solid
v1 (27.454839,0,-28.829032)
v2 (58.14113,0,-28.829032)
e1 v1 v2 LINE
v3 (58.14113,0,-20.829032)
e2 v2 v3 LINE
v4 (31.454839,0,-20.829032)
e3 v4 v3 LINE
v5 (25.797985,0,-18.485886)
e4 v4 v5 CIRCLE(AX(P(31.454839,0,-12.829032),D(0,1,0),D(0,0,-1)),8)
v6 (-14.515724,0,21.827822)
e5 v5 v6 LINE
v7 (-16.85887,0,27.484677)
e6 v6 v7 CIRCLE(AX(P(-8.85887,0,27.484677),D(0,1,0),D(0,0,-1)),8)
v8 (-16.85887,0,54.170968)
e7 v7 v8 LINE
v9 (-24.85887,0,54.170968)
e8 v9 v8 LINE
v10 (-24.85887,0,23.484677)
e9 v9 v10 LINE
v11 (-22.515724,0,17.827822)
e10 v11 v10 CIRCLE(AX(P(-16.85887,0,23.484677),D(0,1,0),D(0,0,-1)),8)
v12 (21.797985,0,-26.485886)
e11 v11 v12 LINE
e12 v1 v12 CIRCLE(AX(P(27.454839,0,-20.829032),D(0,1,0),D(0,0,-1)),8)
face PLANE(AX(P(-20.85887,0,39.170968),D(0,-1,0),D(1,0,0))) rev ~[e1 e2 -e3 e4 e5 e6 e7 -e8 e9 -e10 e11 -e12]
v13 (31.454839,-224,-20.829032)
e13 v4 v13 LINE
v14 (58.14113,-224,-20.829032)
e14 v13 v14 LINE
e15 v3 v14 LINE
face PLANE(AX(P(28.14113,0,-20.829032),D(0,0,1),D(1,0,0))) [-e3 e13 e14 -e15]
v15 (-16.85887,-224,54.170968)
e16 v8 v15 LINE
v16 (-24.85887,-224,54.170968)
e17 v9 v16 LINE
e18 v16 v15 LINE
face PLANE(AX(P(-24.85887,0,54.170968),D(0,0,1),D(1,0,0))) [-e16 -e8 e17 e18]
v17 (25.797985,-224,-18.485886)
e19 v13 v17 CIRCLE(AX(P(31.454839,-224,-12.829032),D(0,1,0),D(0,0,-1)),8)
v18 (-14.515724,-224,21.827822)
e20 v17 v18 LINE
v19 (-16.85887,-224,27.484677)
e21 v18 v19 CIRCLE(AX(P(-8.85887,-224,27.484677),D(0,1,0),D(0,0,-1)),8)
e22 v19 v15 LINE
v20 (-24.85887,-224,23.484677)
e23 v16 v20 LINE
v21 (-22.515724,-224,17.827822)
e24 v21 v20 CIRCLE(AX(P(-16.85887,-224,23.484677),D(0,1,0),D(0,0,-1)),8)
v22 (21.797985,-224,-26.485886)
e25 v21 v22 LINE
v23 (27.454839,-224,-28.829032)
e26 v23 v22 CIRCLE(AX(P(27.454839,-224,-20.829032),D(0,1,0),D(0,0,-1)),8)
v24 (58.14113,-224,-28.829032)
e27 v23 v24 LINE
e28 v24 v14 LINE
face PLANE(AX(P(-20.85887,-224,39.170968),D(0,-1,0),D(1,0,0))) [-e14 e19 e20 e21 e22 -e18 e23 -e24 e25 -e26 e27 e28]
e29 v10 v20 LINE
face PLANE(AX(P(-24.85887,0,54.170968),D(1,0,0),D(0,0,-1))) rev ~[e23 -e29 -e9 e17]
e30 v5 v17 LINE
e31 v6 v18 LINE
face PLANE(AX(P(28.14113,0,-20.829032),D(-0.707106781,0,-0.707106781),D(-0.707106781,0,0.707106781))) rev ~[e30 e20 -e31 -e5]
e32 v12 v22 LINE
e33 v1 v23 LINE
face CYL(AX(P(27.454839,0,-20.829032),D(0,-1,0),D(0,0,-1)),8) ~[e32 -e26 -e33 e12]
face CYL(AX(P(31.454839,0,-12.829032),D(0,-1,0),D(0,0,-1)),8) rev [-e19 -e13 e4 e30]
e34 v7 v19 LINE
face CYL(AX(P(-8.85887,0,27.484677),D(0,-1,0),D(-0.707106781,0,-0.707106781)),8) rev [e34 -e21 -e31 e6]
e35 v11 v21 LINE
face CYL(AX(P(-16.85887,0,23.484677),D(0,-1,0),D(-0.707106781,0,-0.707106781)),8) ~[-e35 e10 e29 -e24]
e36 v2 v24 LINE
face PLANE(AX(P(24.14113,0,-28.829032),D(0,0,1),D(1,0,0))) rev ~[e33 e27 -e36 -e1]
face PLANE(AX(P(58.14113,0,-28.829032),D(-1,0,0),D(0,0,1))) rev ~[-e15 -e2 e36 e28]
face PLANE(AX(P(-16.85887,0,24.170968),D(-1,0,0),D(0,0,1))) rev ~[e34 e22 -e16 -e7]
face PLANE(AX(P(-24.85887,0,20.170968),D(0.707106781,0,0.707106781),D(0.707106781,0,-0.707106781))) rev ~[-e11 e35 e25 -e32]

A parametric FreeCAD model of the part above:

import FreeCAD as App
import Part
import Sketcher
Q = App.Units.Quantity


def edges_at(feature, points):
    """Names of the edges that pass closest to the given points."""
    edges = feature.Shape.Edges
    near = lambda p: min(range(len(edges)), key=lambda i: edges[i].distToShape(Part.Vertex(*p))[0])
    return sorted({f"Edge{near(p) + 1}" for p in points})

doc = App.newDocument("Part")
params = doc.addObject("Spreadsheet::Sheet", "Params")
for row, (alias, value) in enumerate([
    ("sketch1_width", "34 mm"),
    ("sketch1_width2", "30 mm"),
    ("sketch1_width3", "8 mm"),
    ("pad1_length", "224 mm"),
    ("fillet_radius", "8 mm"),
    ("fillet2_radius", "8 mm"),
], start=1):
    params.set(f"A{row}", alias)
    params.set(f"B{row}", "=" + value)
    params.setAlias(f"B{row}", alias)

body = doc.addObject("PartDesign::Body", "Body")

# Sketch on XZ plane
sketch1 = body.newObject("Sketcher::SketchObject", "Sketch")
sketch1.AttachmentSupport = (doc.getObject("XZ_Plane"), [""])
sketch1.MapMode = "FlatFace"
sketch1.addGeometry([
    Part.LineSegment(App.Vector(-24.85887, 54.170968, 0), App.Vector(-24.85887, 20.170968, 0)),  # 0
    Part.LineSegment(App.Vector(-24.85887, 20.170968, 0), App.Vector(24.14113, -28.829032, 0)),  # 1
    Part.LineSegment(App.Vector(24.14113, -28.829032, 0), App.Vector(58.14113, -28.829032, 0)),  # 2
    Part.LineSegment(App.Vector(58.14113, -28.829032, 0), App.Vector(58.14113, -20.829032, 0)),  # 3
    Part.LineSegment(App.Vector(58.14113, -20.829032, 0), App.Vector(28.14113, -20.829032, 0)),  # 4
    Part.LineSegment(App.Vector(28.14113, -20.829032, 0), App.Vector(-16.85887, 24.170968, 0)),  # 5
    Part.LineSegment(App.Vector(-16.85887, 24.170968, 0), App.Vector(-16.85887, 54.170968, 0)),  # 6
    Part.LineSegment(App.Vector(-16.85887, 54.170968, 0), App.Vector(-24.85887, 54.170968, 0)),  # 7
], False)
sketch1.addConstraint([
    Sketcher.Constraint("Coincident", 0, 2, 1, 1),
    Sketcher.Constraint("Coincident", 1, 2, 2, 1),
    Sketcher.Constraint("Coincident", 2, 2, 3, 1),
    Sketcher.Constraint("Coincident", 3, 2, 4, 1),
    Sketcher.Constraint("Coincident", 4, 2, 5, 1),
    Sketcher.Constraint("Coincident", 5, 2, 6, 1),
    Sketcher.Constraint("Coincident", 6, 2, 7, 1),
    Sketcher.Constraint("Coincident", 7, 2, 0, 1),
    Sketcher.Constraint("Vertical", 0),
    Sketcher.Constraint("Horizontal", 2),
    Sketcher.Constraint("Vertical", 3),
    Sketcher.Constraint("Horizontal", 4),
    Sketcher.Constraint("Vertical", 6),
    Sketcher.Constraint("Horizontal", 7),
    Sketcher.Constraint("Parallel", 1, 5),
    Sketcher.Constraint("Equal", 2, 0),
    Sketcher.Constraint("Equal", 7, 3),
    Sketcher.Constraint("Equal", 4, 6),
    Sketcher.Constraint("DistanceX", 2, 1, 2, 2, Q("34 mm")),
    Sketcher.Constraint("DistanceX", 4, 2, 4, 1, Q("30 mm")),
    Sketcher.Constraint("DistanceX", 7, 2, 7, 1, Q("8 mm")),
    Sketcher.Constraint("DistanceX", 0, 2, 1, 2, Q("49 mm")),
    Sketcher.Constraint("DistanceX", 0, 2, -1, 1, Q("24.85887 mm")),
    Sketcher.Constraint("DistanceY", -1, 1, 0, 2, Q("20.170968 mm")),
])
sketch1.setExpression("Constraints[18]", "Params.sketch1_width")
sketch1.setExpression("Constraints[19]", "Params.sketch1_width2")
sketch1.setExpression("Constraints[20]", "Params.sketch1_width3")
pad1 = body.newObject("PartDesign::Pad", "Pad")
pad1.Profile = sketch1
pad1.setExpression("Length", "Params.pad1_length")
doc.recompute()

fillet = body.newObject("PartDesign::Fillet", "Fillet")
fillet.Base = (pad1, edges_at(pad1, [(-16.859, -112, 24.171), (28.141, -112, -20.829)]))
fillet.setExpression("Radius", "Params.fillet_radius")
doc.recompute()

fillet2 = body.newObject("PartDesign::Fillet", "Fillet001")
fillet2.Base = (fillet, edges_at(fillet, [(-24.859, -112, 20.171), (24.141, -112, -28.829)]))
fillet2.setExpression("Radius", "Params.fillet2_radius")

doc.recompute()
